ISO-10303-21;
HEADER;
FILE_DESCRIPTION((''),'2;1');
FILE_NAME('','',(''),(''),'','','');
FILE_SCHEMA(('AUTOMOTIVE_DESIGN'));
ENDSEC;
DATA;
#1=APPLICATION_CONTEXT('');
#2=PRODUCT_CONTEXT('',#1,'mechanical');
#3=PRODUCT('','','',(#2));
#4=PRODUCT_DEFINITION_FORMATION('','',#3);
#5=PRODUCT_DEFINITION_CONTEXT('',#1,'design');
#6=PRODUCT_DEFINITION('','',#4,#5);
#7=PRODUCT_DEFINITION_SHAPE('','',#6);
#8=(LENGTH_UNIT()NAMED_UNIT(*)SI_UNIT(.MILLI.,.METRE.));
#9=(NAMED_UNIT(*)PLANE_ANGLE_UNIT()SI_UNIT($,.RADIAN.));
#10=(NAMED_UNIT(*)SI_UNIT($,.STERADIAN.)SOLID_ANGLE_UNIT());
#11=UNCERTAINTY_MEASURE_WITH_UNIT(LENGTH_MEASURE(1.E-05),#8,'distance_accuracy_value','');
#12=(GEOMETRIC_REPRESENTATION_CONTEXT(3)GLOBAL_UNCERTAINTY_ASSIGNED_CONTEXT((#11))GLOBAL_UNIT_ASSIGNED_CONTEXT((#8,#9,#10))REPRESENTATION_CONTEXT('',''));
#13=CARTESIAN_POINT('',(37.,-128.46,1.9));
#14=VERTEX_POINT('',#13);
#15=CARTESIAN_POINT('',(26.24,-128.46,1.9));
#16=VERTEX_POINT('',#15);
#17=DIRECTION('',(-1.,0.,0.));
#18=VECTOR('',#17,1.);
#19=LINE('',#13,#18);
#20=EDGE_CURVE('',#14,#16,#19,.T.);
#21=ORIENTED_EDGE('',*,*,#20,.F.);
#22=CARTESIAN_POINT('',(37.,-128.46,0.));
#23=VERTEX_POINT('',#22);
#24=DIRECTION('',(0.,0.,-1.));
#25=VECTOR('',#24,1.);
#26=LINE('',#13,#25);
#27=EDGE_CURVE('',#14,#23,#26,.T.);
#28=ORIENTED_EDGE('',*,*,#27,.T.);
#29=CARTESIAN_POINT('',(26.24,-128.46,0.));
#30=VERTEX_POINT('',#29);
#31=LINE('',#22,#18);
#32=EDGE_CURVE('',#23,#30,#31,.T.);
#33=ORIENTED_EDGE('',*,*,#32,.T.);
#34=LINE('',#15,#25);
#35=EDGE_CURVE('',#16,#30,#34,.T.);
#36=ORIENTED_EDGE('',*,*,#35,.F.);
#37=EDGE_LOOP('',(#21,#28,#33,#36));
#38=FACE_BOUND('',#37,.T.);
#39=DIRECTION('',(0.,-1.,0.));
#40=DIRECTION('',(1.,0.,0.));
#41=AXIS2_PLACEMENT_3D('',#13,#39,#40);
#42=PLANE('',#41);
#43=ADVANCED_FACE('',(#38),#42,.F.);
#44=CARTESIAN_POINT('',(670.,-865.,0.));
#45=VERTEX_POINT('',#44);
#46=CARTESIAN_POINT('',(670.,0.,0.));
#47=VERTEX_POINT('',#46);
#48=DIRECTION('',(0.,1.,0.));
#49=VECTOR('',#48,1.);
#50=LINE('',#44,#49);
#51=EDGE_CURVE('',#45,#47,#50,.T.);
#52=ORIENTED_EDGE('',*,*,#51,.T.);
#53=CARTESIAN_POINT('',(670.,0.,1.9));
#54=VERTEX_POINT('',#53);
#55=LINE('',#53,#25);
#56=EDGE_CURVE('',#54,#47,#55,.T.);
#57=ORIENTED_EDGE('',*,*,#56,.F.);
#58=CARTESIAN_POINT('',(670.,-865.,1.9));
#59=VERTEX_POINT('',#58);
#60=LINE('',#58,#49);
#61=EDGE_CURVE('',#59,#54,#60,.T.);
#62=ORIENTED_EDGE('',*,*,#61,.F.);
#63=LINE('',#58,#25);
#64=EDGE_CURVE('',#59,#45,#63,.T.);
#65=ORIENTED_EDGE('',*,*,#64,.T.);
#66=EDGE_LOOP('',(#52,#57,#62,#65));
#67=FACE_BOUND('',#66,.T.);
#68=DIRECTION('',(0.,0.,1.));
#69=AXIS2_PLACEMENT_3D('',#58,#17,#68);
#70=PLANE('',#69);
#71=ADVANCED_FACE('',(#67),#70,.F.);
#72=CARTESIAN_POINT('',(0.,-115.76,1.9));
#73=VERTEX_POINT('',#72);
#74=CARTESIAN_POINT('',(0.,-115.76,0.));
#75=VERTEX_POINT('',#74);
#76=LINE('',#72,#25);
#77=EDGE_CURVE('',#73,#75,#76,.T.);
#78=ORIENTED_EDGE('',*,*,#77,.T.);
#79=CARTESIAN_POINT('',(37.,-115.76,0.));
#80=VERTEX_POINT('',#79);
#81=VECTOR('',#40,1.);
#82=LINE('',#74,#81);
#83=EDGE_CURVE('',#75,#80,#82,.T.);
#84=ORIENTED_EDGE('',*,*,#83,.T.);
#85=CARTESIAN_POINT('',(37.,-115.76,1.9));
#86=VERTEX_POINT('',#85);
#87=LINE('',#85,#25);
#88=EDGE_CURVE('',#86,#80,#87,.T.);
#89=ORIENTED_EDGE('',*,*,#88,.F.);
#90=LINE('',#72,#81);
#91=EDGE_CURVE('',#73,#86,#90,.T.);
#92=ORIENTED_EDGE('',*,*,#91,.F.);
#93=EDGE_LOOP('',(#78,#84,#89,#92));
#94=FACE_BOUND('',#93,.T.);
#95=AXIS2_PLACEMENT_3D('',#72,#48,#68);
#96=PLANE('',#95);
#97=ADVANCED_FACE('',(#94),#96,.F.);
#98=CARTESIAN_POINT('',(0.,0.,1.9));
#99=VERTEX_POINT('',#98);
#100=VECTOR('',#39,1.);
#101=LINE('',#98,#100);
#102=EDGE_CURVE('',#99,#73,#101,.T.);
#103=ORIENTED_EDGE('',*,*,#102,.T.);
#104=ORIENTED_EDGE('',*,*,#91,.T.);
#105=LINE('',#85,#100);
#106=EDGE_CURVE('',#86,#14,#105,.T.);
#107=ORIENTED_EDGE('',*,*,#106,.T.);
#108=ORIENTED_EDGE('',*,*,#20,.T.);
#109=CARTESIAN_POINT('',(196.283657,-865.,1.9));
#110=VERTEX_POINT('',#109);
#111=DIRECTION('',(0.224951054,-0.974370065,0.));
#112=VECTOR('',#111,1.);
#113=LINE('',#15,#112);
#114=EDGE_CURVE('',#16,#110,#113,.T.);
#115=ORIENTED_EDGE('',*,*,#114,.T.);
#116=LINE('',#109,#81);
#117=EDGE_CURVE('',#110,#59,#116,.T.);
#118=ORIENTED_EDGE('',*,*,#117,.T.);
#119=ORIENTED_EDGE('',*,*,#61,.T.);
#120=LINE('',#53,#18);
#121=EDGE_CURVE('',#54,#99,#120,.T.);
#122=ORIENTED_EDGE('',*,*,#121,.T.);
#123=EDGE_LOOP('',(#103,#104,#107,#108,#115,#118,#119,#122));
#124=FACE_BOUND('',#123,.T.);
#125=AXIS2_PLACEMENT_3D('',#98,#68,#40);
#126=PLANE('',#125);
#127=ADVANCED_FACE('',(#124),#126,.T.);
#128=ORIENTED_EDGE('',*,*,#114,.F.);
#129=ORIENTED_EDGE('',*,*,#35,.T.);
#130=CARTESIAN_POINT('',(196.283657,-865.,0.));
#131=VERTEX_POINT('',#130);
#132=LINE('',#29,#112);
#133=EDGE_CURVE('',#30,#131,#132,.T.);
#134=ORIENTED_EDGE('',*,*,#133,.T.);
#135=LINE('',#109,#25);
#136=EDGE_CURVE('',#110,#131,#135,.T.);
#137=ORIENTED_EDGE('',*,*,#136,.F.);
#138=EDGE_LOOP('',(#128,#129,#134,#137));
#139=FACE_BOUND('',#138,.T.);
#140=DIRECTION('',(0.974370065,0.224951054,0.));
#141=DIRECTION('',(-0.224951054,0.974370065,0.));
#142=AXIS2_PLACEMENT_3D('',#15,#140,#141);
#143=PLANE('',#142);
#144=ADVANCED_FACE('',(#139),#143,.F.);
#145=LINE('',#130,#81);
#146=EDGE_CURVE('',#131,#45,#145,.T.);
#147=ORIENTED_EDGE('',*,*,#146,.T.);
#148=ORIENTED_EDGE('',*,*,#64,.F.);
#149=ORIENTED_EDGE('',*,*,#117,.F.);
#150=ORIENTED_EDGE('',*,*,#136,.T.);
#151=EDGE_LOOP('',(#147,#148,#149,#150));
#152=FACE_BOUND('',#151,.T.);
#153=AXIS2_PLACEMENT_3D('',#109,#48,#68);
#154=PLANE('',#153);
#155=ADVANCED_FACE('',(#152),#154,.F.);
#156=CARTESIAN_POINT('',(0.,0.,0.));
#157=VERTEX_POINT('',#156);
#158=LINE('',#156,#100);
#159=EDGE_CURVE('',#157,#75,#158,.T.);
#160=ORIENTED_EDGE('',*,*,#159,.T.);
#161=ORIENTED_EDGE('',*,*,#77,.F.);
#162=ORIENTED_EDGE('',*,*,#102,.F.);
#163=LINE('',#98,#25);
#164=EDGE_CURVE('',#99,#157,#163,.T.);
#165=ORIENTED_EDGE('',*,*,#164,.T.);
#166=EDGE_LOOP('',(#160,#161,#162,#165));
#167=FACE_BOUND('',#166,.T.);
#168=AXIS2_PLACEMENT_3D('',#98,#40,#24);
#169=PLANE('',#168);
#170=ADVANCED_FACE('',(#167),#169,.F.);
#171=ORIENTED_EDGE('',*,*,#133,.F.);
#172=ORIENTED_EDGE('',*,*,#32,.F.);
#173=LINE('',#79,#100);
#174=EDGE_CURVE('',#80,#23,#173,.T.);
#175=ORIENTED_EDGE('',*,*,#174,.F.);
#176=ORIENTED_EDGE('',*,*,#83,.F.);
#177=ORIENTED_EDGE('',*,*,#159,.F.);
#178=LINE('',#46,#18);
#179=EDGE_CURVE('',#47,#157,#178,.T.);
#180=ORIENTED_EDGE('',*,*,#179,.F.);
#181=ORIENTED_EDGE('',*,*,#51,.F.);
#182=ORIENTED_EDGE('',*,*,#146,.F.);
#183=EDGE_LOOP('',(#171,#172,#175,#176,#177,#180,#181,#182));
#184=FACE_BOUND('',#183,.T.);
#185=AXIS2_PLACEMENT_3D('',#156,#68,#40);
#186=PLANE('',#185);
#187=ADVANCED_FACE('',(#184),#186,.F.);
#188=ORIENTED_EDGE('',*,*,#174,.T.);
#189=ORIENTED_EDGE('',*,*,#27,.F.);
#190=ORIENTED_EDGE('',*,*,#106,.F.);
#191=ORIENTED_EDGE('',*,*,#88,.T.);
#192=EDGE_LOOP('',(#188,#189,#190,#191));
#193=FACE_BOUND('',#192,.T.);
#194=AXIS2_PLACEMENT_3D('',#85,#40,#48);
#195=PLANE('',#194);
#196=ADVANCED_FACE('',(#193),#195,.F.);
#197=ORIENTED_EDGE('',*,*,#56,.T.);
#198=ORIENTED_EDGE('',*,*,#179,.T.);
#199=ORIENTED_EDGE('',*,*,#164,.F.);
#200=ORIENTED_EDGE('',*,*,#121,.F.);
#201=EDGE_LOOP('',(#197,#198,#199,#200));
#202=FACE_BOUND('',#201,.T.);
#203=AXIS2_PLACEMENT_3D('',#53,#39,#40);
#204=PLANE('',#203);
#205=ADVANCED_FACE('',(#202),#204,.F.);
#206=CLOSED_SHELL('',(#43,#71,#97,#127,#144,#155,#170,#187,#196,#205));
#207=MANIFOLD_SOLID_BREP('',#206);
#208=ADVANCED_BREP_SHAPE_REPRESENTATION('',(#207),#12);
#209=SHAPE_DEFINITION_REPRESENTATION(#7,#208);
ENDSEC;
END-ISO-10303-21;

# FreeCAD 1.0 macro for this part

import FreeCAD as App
import Part
import Sketcher
from FreeCAD import Vector
Q = App.Units.Quantity


def add_polygon(sketch, points):
    """Adds a closed chain of lines whose ends are joined by coincident constraints."""
    first, n = sketch.GeometryCount, len(points)
    for a, b in zip(points, points[1:] + points[:1]):
        sketch.addGeometry(Part.LineSegment(App.Vector(*a, 0), App.Vector(*b, 0)), False)
    for i in range(n):
        sketch.addConstraint(Sketcher.Constraint("Coincident", first + i, 2, first + (i + 1) % n, 1))

doc = App.newDocument("Part")
body = doc.addObject("PartDesign::Body", "Body")

# Sketch on XY plane
sketch1 = body.newObject("Sketcher::SketchObject", "Sketch")
sketch1.AttachmentSupport = (doc.getObject("XY_Plane"), [""])
sketch1.MapMode = "FlatFace"
add_polygon(sketch1, [(0, 0), (0, -116), (37, -116), (37, -128), (26, -128), (196, -865), (670, -865), (670, 0)])  # lines 0-7
sketch1.addConstraint(Sketcher.Constraint("Vertical", 0))
sketch1.addConstraint(Sketcher.Constraint("Horizontal", 1))
sketch1.addConstraint(Sketcher.Constraint("Vertical", 2))
sketch1.addConstraint(Sketcher.Constraint("Horizontal", 3))
sketch1.addConstraint(Sketcher.Constraint("Horizontal", 5))
sketch1.addConstraint(Sketcher.Constraint("Vertical", 6))
sketch1.addConstraint(Sketcher.Constraint("Horizontal", 7))
sketch1.addConstraint(Sketcher.Constraint("Coincident", 7, 2, -1, 1))
sketch1.addConstraint(Sketcher.Constraint("DistanceX", 1, 1, 1, 2, Q("37 mm")))
sketch1.addConstraint(Sketcher.Constraint("DistanceX", 7, 2, 7, 1, Q("670 mm")))
sketch1.addConstraint(Sketcher.Constraint("DistanceY", 6, 1, 6, 2, Q("865 mm")))
sketch1.addConstraint(Sketcher.Constraint("Angle", 4, Q("-77 deg")))
sketch1.addConstraint(Sketcher.Constraint("DistanceY", 2, 2, 2, 1, Q("12.7 mm")))
sketch1.addConstraint(Sketcher.Constraint("DistanceX", 3, 2, 3, 1, Q("10.76 mm")))
sketch1.addConstraint(Sketcher.Constraint("DistanceY", 0, 2, 0, 1, Q("115.76 mm")))
pad1 = body.newObject("PartDesign::Pad", "Pad")
pad1.Profile = sketch1
pad1.Length = 1.9

doc.recompute()
